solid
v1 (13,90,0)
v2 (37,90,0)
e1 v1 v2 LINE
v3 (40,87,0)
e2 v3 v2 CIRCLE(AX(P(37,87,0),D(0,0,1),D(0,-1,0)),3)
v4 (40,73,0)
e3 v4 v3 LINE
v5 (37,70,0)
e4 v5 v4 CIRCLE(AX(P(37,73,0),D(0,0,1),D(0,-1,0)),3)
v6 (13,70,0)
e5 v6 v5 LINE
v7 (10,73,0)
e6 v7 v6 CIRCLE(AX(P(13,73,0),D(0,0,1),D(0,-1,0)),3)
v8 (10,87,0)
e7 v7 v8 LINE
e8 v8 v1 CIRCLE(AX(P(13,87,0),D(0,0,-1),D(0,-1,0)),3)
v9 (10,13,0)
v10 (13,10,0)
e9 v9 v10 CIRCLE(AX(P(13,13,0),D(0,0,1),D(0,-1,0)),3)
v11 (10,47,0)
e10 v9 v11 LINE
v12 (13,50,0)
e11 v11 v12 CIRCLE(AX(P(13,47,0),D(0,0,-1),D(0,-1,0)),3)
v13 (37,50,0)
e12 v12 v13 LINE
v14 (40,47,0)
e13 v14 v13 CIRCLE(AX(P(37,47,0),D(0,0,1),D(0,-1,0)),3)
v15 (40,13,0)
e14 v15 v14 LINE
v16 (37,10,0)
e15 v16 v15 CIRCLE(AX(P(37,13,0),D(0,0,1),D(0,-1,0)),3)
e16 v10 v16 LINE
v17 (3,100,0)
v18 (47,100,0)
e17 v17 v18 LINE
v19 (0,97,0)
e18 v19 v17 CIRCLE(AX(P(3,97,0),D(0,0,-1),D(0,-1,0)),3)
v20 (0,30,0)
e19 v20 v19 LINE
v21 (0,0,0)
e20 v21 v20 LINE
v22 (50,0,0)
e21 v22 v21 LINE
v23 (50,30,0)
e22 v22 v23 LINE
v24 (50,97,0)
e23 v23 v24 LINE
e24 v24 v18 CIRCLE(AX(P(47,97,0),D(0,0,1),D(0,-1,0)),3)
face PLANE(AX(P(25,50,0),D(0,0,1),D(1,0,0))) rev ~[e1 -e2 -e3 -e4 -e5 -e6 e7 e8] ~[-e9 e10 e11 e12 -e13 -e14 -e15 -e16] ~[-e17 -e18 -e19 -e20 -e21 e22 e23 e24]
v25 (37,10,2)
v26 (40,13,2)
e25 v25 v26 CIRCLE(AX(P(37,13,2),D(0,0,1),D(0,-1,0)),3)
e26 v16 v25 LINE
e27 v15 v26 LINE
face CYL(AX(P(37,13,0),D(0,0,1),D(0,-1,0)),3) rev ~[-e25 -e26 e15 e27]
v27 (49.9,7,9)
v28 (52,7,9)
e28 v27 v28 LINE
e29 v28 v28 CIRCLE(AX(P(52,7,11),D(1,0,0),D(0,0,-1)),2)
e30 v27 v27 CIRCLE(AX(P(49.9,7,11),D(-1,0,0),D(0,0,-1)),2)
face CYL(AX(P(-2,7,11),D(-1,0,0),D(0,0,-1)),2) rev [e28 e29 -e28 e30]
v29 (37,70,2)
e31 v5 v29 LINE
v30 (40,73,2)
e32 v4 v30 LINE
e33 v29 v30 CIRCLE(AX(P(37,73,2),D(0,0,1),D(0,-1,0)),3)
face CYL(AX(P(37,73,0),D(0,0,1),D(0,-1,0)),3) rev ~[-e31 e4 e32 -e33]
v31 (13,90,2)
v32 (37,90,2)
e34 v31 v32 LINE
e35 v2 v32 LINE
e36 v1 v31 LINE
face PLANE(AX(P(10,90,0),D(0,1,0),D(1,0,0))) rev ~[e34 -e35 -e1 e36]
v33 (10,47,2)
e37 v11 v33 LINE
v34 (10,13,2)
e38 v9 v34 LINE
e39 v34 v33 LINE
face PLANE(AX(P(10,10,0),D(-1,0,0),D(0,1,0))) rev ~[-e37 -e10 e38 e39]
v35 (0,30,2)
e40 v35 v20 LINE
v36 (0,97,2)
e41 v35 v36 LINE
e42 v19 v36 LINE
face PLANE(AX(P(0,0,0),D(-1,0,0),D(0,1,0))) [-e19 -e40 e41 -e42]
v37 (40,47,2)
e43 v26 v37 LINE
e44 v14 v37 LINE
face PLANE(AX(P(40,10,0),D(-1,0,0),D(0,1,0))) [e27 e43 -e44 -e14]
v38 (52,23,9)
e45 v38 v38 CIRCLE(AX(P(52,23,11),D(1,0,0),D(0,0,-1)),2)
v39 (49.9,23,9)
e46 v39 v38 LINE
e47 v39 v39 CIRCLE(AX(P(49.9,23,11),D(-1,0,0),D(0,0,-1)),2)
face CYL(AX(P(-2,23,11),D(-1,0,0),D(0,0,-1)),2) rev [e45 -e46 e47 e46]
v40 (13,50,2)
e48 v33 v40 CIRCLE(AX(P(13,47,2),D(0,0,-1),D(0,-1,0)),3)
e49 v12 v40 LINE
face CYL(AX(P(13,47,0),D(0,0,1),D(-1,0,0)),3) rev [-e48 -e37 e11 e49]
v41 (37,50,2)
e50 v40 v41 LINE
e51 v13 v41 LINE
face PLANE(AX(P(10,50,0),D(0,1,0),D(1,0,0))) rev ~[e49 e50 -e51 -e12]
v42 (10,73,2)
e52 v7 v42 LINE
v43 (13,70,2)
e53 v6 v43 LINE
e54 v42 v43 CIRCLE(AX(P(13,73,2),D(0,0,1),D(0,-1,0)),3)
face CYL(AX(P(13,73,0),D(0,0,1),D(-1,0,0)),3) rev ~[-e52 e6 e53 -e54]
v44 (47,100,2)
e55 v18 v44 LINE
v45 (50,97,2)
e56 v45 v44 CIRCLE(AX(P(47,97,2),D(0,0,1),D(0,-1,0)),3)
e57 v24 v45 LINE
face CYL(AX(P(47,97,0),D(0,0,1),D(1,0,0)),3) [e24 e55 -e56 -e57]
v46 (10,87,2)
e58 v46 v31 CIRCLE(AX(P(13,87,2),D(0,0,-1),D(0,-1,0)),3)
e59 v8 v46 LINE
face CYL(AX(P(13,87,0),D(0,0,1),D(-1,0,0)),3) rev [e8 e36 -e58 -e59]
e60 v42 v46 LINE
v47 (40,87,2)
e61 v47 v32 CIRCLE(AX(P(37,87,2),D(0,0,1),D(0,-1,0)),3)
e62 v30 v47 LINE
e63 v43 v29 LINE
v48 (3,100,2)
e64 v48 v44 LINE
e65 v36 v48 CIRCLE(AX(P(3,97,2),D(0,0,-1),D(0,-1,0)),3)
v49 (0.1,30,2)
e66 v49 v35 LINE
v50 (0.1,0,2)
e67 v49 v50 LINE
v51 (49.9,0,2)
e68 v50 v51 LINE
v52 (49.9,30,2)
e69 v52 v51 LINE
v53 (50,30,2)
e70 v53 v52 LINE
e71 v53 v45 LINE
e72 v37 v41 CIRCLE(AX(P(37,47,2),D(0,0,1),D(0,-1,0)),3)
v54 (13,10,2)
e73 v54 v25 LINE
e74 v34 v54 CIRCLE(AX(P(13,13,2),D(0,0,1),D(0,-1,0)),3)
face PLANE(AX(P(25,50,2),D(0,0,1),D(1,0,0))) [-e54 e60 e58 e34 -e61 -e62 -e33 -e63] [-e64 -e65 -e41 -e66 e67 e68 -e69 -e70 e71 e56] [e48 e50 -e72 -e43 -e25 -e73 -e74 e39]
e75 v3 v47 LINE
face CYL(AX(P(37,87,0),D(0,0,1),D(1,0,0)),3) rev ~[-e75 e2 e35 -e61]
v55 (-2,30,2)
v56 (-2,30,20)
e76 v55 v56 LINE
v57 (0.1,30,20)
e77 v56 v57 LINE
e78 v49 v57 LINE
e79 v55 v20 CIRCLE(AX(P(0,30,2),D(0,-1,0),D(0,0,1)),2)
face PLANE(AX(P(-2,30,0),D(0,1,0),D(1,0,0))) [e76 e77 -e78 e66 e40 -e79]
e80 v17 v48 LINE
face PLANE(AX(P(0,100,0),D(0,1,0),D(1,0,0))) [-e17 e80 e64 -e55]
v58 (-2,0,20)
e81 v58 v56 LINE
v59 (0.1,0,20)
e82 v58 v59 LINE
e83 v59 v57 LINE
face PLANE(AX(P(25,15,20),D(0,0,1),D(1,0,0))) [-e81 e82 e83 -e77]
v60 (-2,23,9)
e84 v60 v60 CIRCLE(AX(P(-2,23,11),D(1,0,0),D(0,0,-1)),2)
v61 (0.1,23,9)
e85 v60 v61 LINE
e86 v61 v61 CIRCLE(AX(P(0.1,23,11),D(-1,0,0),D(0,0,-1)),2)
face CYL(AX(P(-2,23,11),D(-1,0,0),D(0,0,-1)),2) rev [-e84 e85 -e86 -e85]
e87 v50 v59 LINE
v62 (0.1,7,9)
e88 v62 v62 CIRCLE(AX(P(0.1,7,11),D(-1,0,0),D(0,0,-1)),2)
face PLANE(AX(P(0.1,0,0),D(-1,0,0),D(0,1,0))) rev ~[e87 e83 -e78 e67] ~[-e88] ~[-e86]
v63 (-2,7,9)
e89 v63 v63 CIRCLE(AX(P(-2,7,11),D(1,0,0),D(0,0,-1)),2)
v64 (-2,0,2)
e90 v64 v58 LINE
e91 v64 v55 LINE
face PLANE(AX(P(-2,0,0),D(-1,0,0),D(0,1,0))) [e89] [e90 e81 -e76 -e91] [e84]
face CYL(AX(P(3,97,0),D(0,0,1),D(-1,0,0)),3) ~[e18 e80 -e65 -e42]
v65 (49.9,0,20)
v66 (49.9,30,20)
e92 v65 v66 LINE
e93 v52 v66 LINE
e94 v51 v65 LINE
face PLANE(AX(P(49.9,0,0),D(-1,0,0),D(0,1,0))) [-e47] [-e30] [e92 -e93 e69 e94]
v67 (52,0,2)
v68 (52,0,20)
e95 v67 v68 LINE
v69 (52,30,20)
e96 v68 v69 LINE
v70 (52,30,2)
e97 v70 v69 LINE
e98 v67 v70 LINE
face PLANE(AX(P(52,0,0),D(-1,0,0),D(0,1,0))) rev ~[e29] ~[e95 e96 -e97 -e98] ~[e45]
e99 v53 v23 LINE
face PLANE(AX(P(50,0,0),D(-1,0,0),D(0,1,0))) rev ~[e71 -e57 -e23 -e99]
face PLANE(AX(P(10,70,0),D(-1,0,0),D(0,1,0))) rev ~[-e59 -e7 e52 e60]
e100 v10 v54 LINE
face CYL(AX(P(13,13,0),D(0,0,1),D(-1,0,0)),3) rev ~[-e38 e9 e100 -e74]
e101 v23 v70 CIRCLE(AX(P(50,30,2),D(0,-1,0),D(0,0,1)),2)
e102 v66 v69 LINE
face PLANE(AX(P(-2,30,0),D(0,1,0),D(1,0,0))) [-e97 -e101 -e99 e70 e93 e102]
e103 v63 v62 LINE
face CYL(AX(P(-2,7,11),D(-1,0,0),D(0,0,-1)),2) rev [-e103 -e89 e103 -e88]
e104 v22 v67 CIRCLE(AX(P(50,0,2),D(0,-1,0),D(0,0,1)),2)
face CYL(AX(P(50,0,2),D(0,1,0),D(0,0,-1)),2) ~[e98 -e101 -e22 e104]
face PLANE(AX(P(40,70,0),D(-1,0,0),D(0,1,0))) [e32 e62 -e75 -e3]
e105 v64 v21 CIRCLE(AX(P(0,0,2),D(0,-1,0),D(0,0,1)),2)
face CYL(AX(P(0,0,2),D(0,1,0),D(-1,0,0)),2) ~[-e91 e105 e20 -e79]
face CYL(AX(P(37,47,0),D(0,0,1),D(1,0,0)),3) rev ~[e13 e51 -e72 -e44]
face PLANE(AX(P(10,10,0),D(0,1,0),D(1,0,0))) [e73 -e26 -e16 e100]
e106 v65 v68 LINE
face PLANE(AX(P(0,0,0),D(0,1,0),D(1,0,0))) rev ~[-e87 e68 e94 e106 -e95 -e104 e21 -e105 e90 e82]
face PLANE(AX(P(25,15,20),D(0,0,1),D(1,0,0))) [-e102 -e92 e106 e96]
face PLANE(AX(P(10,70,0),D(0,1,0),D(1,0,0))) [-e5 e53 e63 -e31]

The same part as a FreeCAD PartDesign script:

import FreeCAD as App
import Part
import Sketcher

V = App.Vector


def edges_at(feature, points):
    """Names of the edges that pass closest to the given points."""
    edges = feature.Shape.Edges
    near = lambda p: min(range(len(edges)), key=lambda i: edges[i].distToShape(Part.Vertex(*p))[0])
    return sorted({f"Edge{near(p) + 1}" for p in points})


def add_polygon(sketch, points):
    """Adds a closed chain of lines whose ends are joined by coincident constraints."""
    first, n = sketch.GeometryCount, len(points)
    for a, b in zip(points, points[1:] + points[:1]):
        sketch.addGeometry(Part.LineSegment(App.Vector(*a, 0), App.Vector(*b, 0)), False)
    for i in range(n):
        sketch.addConstraint(Sketcher.Constraint("Coincident", first + i, 2, first + (i + 1) % n, 1))

doc = App.newDocument("Part")
params = doc.addObject("Spreadsheet::Sheet", "Params")
for row, (alias, value) in enumerate([
    ("sketch1_height", "30 mm"),
    ("sketch1_width", "49.8 mm"),
    ("pad1_length", "20 mm"),
    ("sketch2_diameter", "4 mm"),
    ("pad2_length", "54 mm"),
    ("sketch3_diameter", "4 mm"),
    ("pad3_length", "54 mm"),
    ("sketch4_width", "54 mm"),
    ("sketch4_height", "30 mm"),
    ("pad4_length", "20 mm"),
    ("fillet_radius", "2 mm"),
    ("fillet2_radius", "2 mm"),
    ("sketch5_width", "30 mm"),
    ("sketch5_height", "20 mm"),
    ("pad5_length", "2 mm"),
    ("fillet3_radius", "3 mm"),
    ("sketch6_width", "30 mm"),
    ("sketch6_height", "40 mm"),
    ("pad6_length", "2 mm"),
    ("fillet4_radius", "3 mm"),
    ("sketch7_width", "50 mm"),
    ("sketch7_height", "100 mm"),
    ("pad7_length", "2 mm"),
    ("fillet5_radius", "3 mm"),
], start=1):
    params.set(f"A{row}", alias)
    params.set(f"B{row}", "=" + value)
    params.setAlias(f"B{row}", alias)

body = doc.addObject("PartDesign::Body", "Body")

# Sketch on XY plane
sketch1 = body.newObject("Sketcher::SketchObject", "Sketch")
sketch1.AttachmentSupport = (doc.getObject("XY_Plane"), [""])
sketch1.MapMode = "FlatFace"
add_polygon(sketch1, [(2, 30), (2, 0), (52, 0), (52, 30)])  # lines 0-3
sketch1.addConstraint([
    Sketcher.Constraint("Vertical", 0),
    Sketcher.Constraint("Horizontal", 1),
    Sketcher.Constraint("Vertical", 2),
    Sketcher.Constraint("Horizontal", 3),
    Sketcher.Constraint("PointOnObject", 0, 2, -1),
    Sketcher.Constraint("DistanceY", 0, 2, 0, 1, 30.0),
    Sketcher.Constraint("DistanceX", 1, 1, 1, 2, 49.8),
    Sketcher.Constraint("DistanceX", -1, 1, 0, 2, 2.1),
])
sketch1.setExpression("Constraints[9]", "Params.sketch1_height")
sketch1.setExpression("Constraints[10]", "Params.sketch1_width")
pad1 = body.newObject("PartDesign::Pad", "Pad")
pad1.Profile = sketch1
pad1.setExpression("Length", "Params.pad1_length")
body2 = doc.addObject("PartDesign::Body", "Body001")

# Sketch on YZ plane
sketch2 = body2.newObject("Sketcher::SketchObject", "Sketch001")
sketch2.AttachmentSupport = (doc.getObject("YZ_Plane001"), [""])
sketch2.MapMode = "FlatFace"
sketch2.addGeometry(Part.Circle(V(23, 11, 0), V(0, 0, 1), 2), False)
sketch2.addConstraint([
    Sketcher.Constraint("Diameter", 0, 4.0),
    Sketcher.Constraint("DistanceX", -1, 1, 0, 3, 23.0),
    Sketcher.Constraint("DistanceY", -1, 1, 0, 3, 11.0),
])
sketch2.setExpression("Constraints[0]", "Params.sketch2_diameter")
pad2 = body2.newObject("PartDesign::Pad", "Pad001")
pad2.Profile = sketch2
pad2.setExpression("Length", "Params.pad2_length")
body3 = doc.addObject("PartDesign::Body", "Body002")

# Sketch on YZ plane
sketch3 = body3.newObject("Sketcher::SketchObject", "Sketch002")
sketch3.AttachmentSupport = (doc.getObject("YZ_Plane002"), [""])
sketch3.MapMode = "FlatFace"
sketch3.addGeometry(Part.Circle(V(7, 11, 0), V(0, 0, 1), 2), False)
sketch3.addConstraint([
    Sketcher.Constraint("Diameter", 0, 4.0),
    Sketcher.Constraint("DistanceX", -1, 1, 0, 3, 7.0),
    Sketcher.Constraint("DistanceY", -1, 1, 0, 3, 11.0),
])
sketch3.setExpression("Constraints[0]", "Params.sketch3_diameter")
pad3 = body3.newObject("PartDesign::Pad", "Pad002")
pad3.Profile = sketch3
pad3.setExpression("Length", "Params.pad3_length")
body4 = doc.addObject("PartDesign::Body", "Body003")
body4.AllowCompound = True

# Sketch on XY plane
sketch4 = body4.newObject("Sketcher::SketchObject", "Sketch003")
sketch4.AttachmentSupport = (doc.getObject("XY_Plane003"), [""])
sketch4.MapMode = "FlatFace"
add_polygon(sketch4, [(0, 30), (0, 0), (54, 0), (54, 30)])  # lines 0-3
sketch4.addConstraint([
    Sketcher.Constraint("Vertical", 0),
    Sketcher.Constraint("Horizontal", 1),
    Sketcher.Constraint("Vertical", 2),
    Sketcher.Constraint("Horizontal", 3),
    Sketcher.Constraint("Coincident", 0, 2, -1, 1),
    Sketcher.Constraint("DistanceX", 1, 1, 1, 2, 54.0),
    Sketcher.Constraint("DistanceY", 0, 2, 0, 1, 30.0),
])
sketch4.setExpression("Constraints[9]", "Params.sketch4_width")
sketch4.setExpression("Constraints[10]", "Params.sketch4_height")
pad4 = body4.newObject("PartDesign::Pad", "Pad003")
pad4.Profile = sketch4
pad4.setExpression("Length", "Params.pad4_length")
doc.recompute()

boolean = body4.newObject("PartDesign::Boolean", "Boolean")
boolean.Type = "Cut"
boolean.addObjects([body3])
doc.recompute()

boolean2 = body4.newObject("PartDesign::Boolean", "Boolean001")
boolean2.Type = "Cut"
boolean2.addObjects([body2])
doc.recompute()

boolean3 = body4.newObject("PartDesign::Boolean", "Boolean002")
boolean3.Type = "Cut"
boolean3.addObjects([body])
doc.recompute()

fillet = body4.newObject("PartDesign::Fillet", "Fillet")
fillet.Base = (boolean3, edges_at(boolean3, [(54, 15, 0)]))
fillet.setExpression("Radius", "Params.fillet_radius")
doc.recompute()

fillet2 = body4.newObject("PartDesign::Fillet", "Fillet001")
fillet2.Base = (fillet, edges_at(fillet, [(0, 15, 0)]))
fillet2.setExpression("Radius", "Params.fillet2_radius")
body5 = doc.addObject("PartDesign::Body", "Body004")
body5.AllowCompound = True
doc.recompute()

body4.Placement = App.Placement(V(-2, 0, 0), App.Rotation(V(0, 0, 1), 0))
boolean4 = body5.newObject("PartDesign::Boolean", "Boolean003")
boolean4.Type = "Fuse"
boolean4.addObjects([body4])
body6 = doc.addObject("PartDesign::Body", "Body005")

# Sketch on XY plane
sketch5 = body6.newObject("Sketcher::SketchObject", "Sketch004")
sketch5.AttachmentSupport = (doc.getObject("XY_Plane005"), [""])
sketch5.MapMode = "FlatFace"
add_polygon(sketch5, [(10, 90), (10, 70), (40, 70), (40, 90)])  # lines 0-3
sketch5.addConstraint([
    Sketcher.Constraint("Vertical", 0),
    Sketcher.Constraint("Horizontal", 1),
    Sketcher.Constraint("Vertical", 2),
    Sketcher.Constraint("Horizontal", 3),
    Sketcher.Constraint("DistanceX", 1, 1, 1, 2, 30.0),
    Sketcher.Constraint("DistanceY", 0, 2, 0, 1, 20.0),
    Sketcher.Constraint("DistanceX", -1, 1, 0, 2, 10.0),
    Sketcher.Constraint("DistanceY", -1, 1, 0, 2, 70.0),
])
sketch5.setExpression("Constraints[8]", "Params.sketch5_width")
sketch5.setExpression("Constraints[9]", "Params.sketch5_height")
pad5 = body6.newObject("PartDesign::Pad", "Pad004")
pad5.Profile = sketch5
pad5.setExpression("Length", "Params.pad5_length")
doc.recompute()

fillet3 = body6.newObject("PartDesign::Fillet", "Fillet002")
fillet3.Base = (pad5, edges_at(pad5, [
    (10, 70, 1),
    (10, 90, 1),
    (40, 70, 1),
    (40, 90, 1),
]))
fillet3.setExpression("Radius", "Params.fillet3_radius")
body7 = doc.addObject("PartDesign::Body", "Body006")

# Sketch on XY plane
sketch6 = body7.newObject("Sketcher::SketchObject", "Sketch005")
sketch6.AttachmentSupport = (doc.getObject("XY_Plane006"), [""])
sketch6.MapMode = "FlatFace"
add_polygon(sketch6, [(10, 50), (10, 10), (40, 10), (40, 50)])  # lines 0-3
sketch6.addConstraint([
    Sketcher.Constraint("Vertical", 0),
    Sketcher.Constraint("Horizontal", 1),
    Sketcher.Constraint("Vertical", 2),
    Sketcher.Constraint("Horizontal", 3),
    Sketcher.Constraint("DistanceX", 1, 1, 1, 2, 30.0),
    Sketcher.Constraint("DistanceY", 0, 2, 0, 1, 40.0),
    Sketcher.Constraint("DistanceX", -1, 1, 0, 2, 10.0),
    Sketcher.Constraint("DistanceY", -1, 1, 0, 2, 10.0),
])
sketch6.setExpression("Constraints[8]", "Params.sketch6_width")
sketch6.setExpression("Constraints[9]", "Params.sketch6_height")
pad6 = body7.newObject("PartDesign::Pad", "Pad005")
pad6.Profile = sketch6
pad6.setExpression("Length", "Params.pad6_length")
doc.recompute()

fillet4 = body7.newObject("PartDesign::Fillet", "Fillet003")
fillet4.Base = (pad6, edges_at(pad6, [
    (10, 10, 1),
    (10, 50, 1),
    (40, 10, 1),
    (40, 50, 1),
]))
fillet4.setExpression("Radius", "Params.fillet4_radius")
body8 = doc.addObject("PartDesign::Body", "Body007")

# Sketch on XY plane
sketch7 = body8.newObject("Sketcher::SketchObject", "Sketch006")
sketch7.AttachmentSupport = (doc.getObject("XY_Plane007"), [""])
sketch7.MapMode = "FlatFace"
add_polygon(sketch7, [(0, 100), (0, 0), (50, 0), (50, 100)])  # lines 0-3
sketch7.addConstraint([
    Sketcher.Constraint("Vertical", 0),
    Sketcher.Constraint("Horizontal", 1),
    Sketcher.Constraint("Vertical", 2),
    Sketcher.Constraint("Horizontal", 3),
    Sketcher.Constraint("Coincident", 0, 2, -1, 1),
    Sketcher.Constraint("DistanceX", 1, 1, 1, 2, 50.0),
    Sketcher.Constraint("DistanceY", 0, 2, 0, 1, 100.0),
])
sketch7.setExpression("Constraints[9]", "Params.sketch7_width")
sketch7.setExpression("Constraints[10]", "Params.sketch7_height")
pad7 = body8.newObject("PartDesign::Pad", "Pad006")
pad7.Profile = sketch7
pad7.setExpression("Length", "Params.pad7_length")
doc.recompute()

fillet5 = body8.newObject("PartDesign::Fillet", "Fillet004")
fillet5.Base = (pad7, edges_at(pad7, [(0, 100, 1), (50, 100, 1)]))
fillet5.setExpression("Radius", "Params.fillet5_radius")
doc.recompute()

boolean5 = body8.newObject("PartDesign::Boolean", "Boolean004")
boolean5.Type = "Cut"
boolean5.addObjects([body7])
doc.recompute()

boolean6 = body8.newObject("PartDesign::Boolean", "Boolean005")
boolean6.Type = "Cut"
boolean6.addObjects([body6])
doc.recompute()

boolean7 = body8.newObject("PartDesign::Boolean", "Boolean006")
boolean7.Type = "Fuse"
boolean7.addObjects([body5])

doc.recompute()
